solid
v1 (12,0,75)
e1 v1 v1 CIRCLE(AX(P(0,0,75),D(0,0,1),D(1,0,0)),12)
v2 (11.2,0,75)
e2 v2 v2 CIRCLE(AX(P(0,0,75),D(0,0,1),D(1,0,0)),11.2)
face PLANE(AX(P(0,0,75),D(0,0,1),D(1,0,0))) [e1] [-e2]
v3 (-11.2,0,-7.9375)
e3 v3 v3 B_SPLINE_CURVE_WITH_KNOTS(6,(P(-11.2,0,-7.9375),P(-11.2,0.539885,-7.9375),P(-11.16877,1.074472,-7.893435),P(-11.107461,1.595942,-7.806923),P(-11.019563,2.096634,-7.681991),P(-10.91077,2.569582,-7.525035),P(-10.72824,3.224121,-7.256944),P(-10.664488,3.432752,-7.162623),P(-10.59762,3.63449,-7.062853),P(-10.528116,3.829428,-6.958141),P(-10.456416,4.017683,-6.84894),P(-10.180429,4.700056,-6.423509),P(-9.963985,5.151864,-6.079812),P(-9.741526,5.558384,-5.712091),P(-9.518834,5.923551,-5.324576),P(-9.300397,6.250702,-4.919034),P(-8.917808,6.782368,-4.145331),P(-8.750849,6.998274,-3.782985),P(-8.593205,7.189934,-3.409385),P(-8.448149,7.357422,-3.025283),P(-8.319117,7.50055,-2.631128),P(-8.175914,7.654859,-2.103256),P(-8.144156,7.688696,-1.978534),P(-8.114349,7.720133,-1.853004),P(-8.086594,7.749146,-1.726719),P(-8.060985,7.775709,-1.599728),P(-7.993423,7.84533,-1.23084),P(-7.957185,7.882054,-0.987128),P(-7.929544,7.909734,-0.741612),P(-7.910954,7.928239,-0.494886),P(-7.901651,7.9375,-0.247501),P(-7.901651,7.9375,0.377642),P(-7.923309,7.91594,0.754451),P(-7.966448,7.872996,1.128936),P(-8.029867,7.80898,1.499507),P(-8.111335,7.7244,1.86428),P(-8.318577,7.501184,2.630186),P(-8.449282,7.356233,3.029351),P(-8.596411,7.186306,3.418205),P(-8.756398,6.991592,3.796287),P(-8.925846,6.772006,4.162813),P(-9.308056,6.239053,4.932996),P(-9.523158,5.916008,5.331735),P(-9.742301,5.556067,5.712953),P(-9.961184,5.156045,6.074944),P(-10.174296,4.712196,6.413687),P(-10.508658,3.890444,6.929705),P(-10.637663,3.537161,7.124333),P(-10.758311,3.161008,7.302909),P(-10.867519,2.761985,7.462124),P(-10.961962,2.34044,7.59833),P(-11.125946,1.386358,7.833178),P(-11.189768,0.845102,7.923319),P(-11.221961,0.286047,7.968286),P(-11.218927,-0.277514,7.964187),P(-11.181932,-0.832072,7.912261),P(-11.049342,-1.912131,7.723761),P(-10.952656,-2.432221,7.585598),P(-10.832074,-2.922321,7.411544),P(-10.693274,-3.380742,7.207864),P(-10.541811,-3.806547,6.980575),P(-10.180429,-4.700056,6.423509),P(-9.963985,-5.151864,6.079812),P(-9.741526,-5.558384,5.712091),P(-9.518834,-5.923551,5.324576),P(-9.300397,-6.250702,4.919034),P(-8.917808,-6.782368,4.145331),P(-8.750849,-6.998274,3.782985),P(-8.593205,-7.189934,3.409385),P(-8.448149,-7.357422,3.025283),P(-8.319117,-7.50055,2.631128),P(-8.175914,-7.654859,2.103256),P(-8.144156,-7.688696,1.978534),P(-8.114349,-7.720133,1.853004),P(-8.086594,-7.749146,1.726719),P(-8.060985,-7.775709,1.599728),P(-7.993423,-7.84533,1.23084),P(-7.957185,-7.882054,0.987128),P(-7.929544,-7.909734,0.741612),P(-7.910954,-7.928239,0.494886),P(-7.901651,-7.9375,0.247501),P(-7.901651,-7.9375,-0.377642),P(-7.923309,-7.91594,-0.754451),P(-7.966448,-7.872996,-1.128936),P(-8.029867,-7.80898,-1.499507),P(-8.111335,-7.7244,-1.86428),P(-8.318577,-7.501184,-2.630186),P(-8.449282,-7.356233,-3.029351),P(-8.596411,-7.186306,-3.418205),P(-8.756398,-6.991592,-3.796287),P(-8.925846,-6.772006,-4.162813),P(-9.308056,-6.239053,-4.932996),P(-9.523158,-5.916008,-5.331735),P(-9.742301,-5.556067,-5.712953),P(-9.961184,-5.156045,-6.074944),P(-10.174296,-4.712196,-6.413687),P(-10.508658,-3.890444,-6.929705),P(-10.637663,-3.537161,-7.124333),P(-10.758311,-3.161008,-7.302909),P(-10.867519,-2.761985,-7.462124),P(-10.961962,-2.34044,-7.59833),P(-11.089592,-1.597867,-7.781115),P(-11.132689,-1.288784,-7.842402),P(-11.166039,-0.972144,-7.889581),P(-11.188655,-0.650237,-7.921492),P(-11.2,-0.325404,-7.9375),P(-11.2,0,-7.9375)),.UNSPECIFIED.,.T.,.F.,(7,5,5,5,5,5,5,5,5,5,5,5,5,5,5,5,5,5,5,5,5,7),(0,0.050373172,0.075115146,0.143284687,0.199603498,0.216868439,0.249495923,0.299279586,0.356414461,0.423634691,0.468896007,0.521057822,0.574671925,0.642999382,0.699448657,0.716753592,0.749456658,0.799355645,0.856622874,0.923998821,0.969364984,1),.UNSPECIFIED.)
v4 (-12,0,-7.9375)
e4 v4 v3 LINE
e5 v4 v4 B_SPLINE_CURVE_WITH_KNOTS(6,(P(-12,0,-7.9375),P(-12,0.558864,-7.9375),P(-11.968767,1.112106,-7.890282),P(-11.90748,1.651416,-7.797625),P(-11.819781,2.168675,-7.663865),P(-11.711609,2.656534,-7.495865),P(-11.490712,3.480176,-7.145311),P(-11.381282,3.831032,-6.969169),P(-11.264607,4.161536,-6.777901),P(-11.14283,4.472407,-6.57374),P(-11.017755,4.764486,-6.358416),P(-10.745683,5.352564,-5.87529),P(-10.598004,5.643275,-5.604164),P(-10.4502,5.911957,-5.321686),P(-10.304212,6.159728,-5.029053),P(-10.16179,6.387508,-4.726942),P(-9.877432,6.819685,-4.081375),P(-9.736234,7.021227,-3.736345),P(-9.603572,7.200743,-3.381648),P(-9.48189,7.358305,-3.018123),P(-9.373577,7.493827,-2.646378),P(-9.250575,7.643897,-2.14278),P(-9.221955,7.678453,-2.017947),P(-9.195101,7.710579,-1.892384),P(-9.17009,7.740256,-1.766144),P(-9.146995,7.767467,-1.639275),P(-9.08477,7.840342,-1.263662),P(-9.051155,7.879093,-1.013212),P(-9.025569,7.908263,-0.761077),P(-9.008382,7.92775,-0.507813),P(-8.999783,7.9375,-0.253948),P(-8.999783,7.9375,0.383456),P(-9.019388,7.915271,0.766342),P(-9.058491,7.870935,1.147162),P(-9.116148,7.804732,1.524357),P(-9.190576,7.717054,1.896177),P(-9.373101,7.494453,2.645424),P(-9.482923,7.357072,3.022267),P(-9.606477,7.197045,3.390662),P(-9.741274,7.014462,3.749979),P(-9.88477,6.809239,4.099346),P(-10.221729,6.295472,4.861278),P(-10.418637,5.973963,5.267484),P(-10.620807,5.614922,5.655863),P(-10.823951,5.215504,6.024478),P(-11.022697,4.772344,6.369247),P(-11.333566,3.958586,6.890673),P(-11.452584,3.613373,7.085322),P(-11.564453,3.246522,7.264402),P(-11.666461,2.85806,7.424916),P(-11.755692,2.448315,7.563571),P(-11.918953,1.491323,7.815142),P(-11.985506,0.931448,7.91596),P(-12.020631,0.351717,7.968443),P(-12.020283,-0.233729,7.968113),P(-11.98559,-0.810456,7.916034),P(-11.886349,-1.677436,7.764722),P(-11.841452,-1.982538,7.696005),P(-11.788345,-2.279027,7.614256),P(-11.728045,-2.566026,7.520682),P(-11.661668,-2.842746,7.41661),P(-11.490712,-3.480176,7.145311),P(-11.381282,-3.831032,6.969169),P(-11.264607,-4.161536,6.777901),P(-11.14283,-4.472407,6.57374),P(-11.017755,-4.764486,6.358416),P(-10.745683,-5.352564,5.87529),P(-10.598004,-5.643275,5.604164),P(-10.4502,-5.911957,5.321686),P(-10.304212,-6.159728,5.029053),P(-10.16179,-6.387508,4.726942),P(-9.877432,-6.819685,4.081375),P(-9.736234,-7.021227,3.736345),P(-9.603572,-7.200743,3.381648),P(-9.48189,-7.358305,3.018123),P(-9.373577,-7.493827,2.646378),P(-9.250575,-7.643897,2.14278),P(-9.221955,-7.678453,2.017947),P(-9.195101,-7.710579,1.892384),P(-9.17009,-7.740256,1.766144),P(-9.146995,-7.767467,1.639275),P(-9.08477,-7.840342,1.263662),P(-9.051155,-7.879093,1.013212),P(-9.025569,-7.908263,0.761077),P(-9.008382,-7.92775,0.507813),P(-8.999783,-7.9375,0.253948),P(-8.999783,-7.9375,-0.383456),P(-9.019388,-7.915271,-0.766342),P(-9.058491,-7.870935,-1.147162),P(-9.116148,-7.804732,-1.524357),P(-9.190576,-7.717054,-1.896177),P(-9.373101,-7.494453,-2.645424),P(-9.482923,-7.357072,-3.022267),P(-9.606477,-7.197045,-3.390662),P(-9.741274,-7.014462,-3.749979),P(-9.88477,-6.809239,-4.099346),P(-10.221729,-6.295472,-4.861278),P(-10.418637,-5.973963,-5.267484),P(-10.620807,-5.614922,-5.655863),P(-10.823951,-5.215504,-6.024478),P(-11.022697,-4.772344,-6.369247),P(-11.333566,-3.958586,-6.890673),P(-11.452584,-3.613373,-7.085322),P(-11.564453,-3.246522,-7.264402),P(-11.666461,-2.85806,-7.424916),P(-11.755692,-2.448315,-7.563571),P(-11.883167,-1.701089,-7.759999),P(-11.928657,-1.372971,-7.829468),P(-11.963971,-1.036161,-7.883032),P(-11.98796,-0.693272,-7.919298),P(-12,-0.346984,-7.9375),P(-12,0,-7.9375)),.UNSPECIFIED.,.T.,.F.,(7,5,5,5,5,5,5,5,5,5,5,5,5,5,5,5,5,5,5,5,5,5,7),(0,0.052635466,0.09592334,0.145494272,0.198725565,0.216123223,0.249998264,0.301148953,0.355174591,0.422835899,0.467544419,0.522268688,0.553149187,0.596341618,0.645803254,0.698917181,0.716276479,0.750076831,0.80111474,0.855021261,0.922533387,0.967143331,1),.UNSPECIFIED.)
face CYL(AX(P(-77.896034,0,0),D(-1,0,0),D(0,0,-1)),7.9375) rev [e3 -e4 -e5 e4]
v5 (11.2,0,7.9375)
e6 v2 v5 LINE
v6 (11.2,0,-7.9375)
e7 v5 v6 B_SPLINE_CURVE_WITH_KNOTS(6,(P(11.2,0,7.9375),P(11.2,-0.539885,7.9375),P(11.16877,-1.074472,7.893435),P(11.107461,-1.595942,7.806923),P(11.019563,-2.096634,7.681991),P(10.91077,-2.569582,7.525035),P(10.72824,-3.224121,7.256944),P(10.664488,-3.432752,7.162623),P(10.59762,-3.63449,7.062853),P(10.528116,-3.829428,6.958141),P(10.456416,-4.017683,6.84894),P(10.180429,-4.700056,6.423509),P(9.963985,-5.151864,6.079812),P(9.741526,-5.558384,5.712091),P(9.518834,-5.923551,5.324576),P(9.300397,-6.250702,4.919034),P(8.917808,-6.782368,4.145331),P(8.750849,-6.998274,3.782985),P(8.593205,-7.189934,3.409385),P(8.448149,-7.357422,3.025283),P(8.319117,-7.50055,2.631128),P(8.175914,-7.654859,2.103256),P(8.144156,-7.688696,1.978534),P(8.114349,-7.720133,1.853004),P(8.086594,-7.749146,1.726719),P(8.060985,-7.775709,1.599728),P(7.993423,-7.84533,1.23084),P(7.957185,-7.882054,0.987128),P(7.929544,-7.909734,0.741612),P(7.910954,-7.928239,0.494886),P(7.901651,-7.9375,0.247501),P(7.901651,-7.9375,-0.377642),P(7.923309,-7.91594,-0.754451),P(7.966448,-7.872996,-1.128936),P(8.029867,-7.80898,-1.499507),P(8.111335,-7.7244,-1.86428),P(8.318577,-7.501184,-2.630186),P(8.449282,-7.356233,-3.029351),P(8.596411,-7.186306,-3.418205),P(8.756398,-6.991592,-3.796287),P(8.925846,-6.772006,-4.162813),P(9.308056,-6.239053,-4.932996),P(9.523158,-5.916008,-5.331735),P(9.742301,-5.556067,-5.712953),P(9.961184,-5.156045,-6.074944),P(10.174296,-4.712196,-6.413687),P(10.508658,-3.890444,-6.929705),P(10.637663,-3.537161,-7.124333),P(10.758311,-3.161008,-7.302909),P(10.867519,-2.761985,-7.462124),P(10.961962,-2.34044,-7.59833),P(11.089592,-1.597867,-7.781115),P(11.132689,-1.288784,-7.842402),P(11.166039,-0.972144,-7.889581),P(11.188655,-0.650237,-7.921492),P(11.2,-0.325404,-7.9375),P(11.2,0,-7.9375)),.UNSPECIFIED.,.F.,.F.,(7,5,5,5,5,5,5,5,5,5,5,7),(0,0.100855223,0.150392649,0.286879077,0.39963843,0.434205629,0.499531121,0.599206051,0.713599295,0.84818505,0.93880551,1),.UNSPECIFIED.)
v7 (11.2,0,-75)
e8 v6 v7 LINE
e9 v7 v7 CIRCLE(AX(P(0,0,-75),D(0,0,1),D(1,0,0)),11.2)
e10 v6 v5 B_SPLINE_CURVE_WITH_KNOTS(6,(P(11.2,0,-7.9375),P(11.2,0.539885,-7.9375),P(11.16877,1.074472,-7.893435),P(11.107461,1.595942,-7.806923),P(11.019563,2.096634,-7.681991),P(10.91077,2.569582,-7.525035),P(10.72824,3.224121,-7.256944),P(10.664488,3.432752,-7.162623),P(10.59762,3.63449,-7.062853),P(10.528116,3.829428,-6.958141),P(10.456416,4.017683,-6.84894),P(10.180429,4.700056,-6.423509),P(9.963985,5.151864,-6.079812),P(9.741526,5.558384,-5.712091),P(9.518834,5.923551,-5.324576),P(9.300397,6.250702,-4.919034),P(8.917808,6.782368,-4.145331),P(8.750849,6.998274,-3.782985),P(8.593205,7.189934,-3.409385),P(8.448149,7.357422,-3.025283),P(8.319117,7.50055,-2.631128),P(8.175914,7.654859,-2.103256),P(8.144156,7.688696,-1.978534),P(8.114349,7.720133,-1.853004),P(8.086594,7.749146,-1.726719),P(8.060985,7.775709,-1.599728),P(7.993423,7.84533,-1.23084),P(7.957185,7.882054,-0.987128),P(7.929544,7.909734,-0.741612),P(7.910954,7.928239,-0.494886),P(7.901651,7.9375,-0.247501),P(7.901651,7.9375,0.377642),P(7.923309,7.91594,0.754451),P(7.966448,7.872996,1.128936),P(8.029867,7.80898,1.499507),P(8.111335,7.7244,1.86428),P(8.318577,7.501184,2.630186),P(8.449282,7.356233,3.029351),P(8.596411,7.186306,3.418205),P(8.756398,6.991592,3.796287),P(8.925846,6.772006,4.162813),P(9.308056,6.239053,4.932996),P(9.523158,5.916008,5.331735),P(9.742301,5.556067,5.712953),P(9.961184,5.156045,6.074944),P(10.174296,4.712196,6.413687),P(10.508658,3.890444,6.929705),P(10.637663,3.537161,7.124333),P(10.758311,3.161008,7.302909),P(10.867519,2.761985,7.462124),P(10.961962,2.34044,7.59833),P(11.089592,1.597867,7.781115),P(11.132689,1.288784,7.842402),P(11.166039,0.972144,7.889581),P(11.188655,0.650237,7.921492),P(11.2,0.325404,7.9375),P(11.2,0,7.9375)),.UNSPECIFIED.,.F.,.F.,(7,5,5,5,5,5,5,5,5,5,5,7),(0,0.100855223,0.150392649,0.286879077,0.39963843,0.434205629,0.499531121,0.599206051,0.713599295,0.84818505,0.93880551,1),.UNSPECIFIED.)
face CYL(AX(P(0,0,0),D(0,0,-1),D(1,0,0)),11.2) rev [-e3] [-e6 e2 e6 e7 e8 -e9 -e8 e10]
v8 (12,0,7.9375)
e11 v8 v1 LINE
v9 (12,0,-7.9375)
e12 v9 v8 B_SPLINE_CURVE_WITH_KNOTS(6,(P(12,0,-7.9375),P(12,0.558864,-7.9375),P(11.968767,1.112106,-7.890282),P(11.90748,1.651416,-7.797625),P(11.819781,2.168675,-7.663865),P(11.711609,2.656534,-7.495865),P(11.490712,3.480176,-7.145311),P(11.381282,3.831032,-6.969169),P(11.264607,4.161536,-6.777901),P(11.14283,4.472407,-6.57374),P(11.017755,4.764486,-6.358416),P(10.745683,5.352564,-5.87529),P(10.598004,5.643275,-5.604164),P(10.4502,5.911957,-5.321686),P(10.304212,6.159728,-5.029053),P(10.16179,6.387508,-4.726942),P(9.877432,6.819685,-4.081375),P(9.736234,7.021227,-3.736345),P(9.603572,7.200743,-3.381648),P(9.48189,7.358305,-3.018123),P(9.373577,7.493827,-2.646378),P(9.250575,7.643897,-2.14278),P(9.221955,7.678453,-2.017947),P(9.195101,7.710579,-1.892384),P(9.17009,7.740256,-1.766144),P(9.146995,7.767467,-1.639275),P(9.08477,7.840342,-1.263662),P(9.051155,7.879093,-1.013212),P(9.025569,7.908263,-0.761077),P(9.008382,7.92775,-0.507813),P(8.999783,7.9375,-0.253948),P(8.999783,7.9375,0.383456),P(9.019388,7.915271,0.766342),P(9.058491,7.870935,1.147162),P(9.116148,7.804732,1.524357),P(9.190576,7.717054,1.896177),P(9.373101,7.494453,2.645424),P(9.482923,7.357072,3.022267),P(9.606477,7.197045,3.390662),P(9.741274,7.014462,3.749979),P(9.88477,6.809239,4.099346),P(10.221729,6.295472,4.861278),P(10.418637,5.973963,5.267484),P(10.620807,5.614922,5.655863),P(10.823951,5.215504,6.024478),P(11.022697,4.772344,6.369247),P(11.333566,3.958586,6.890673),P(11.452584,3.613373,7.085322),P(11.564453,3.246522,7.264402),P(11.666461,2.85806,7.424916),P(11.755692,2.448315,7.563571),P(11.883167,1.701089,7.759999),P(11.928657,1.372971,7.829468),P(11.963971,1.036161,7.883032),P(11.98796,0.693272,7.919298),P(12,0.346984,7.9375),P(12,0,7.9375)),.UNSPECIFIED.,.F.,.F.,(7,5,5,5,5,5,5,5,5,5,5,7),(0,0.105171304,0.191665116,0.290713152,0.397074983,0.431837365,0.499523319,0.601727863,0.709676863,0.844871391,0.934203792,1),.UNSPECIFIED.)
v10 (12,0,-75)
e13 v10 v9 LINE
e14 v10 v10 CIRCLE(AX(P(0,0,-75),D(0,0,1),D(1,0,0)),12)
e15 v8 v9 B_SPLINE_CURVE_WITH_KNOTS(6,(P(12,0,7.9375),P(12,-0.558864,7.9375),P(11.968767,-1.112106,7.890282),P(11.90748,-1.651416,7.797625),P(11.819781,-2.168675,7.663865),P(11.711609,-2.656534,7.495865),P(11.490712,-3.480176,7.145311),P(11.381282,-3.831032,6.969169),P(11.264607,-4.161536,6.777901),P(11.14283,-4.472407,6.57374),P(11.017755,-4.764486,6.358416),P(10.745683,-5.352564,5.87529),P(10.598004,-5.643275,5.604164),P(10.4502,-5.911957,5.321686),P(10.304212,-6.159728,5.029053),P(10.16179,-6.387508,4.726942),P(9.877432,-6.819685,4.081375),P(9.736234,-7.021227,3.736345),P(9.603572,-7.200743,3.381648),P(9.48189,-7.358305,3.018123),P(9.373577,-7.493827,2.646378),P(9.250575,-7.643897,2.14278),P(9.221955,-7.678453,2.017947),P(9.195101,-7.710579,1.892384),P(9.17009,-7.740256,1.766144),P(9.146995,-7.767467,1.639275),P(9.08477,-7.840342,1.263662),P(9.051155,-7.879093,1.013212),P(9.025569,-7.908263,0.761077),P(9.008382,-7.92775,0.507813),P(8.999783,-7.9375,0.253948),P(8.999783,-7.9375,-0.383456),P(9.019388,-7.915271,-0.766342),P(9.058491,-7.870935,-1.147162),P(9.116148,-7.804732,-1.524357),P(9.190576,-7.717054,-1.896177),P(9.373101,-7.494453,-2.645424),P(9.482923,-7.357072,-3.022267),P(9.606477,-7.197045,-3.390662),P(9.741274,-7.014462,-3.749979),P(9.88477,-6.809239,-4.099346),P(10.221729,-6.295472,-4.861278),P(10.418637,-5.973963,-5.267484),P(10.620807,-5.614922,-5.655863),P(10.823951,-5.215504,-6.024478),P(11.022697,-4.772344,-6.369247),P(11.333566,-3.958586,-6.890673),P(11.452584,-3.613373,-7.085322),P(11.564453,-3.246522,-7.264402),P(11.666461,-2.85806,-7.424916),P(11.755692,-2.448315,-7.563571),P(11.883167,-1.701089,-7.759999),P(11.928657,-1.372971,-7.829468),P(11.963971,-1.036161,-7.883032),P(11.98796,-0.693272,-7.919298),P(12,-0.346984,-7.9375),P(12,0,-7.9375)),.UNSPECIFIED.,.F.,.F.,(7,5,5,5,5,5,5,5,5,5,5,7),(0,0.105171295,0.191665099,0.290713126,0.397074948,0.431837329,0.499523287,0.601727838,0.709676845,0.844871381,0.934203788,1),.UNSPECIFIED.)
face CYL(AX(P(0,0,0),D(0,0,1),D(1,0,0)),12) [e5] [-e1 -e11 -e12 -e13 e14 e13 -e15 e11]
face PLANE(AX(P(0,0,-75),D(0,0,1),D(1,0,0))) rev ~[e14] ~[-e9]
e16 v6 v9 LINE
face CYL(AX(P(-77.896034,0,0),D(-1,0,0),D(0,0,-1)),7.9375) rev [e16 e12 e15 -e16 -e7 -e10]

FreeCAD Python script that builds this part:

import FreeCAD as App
import Part
import Sketcher
Q = App.Units.Quantity

doc = App.newDocument("Part")
body = doc.addObject("PartDesign::Body", "Body")

sketch1 = doc.addObject("Sketcher::SketchObject", "Sketch")
body.addObject(sketch1)
sketch1.AttachmentSupport = (doc.XY_Plane, [""])
sketch1.MapMode = "FlatFace"
sketch1.addGeometry([
    Part.Circle(App.Vector(0, 0, 0), App.Vector(0, 0, 1), 12),
    Part.Circle(App.Vector(0, 0, 0), App.Vector(0, 0, 1), 11),
], False)
sketch1.addConstraint([
    Sketcher.Constraint("Coincident", 0, 3, -1, 1),
    Sketcher.Constraint("Coincident", 1, 3, -1, 1),
    Sketcher.Constraint("Diameter", 0, Q("24 mm")),
    Sketcher.Constraint("Diameter", 1, Q("22.4 mm")),
])
pad1 = doc.addObject("PartDesign::Pad", "Pad")
body.addObject(pad1)
pad1.Profile = sketch1
pad1.Length = 150
pad1.Midplane = True

sketch2 = doc.addObject("Sketcher::SketchObject", "Sketch001")
body.addObject(sketch2)
sketch2.AttachmentSupport = (doc.YZ_Plane, [""])
sketch2.MapMode = "FlatFace"
sketch2.addGeometry(Part.Circle(App.Vector(0, 0, 0), App.Vector(0, 0, 1), 8), False)
sketch2.addConstraint([
    Sketcher.Constraint("Coincident", 0, 3, -1, 1),
    Sketcher.Constraint("Diameter", 0, Q("15.875 mm")),
])
pocket1 = doc.addObject("PartDesign::Pocket", "Pocket")
body.addObject(pocket1)
pocket1.Profile = sketch2
pocket1.Type = "ThroughAll"
pocket1.Midplane = True

doc.recompute()
